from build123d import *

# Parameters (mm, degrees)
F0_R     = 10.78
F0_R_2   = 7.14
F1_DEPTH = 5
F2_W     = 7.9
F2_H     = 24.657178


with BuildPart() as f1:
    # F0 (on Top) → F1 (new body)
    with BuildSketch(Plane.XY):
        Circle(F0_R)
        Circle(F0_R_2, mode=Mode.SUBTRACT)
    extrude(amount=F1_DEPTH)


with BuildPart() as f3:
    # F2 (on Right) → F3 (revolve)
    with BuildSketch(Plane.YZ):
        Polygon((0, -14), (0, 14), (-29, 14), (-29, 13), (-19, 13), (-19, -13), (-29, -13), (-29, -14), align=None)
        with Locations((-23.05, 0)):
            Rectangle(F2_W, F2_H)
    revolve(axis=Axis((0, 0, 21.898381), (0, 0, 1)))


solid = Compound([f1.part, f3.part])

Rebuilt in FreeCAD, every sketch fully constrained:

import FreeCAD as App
import Part
import Sketcher
from FreeCAD import Vector
Q = App.Units.Quantity

doc = App.newDocument("Part")
body = doc.addObject("PartDesign::Body", "Body")

# Sketch on XY plane
sketch1 = body.newObject("Sketcher::SketchObject", "Sketch")
sketch1.AttachmentSupport = (doc.getObject("XY_Plane"), [""])
sketch1.MapMode = "FlatFace"
sketch1.addGeometry([
    Part.Circle(Vector(0, 0, 0), Vector(0, 0, 1), 10.78),
    Part.Circle(Vector(0, 0, 0), Vector(0, 0, 1), 7.14),
], False)
sketch1.addConstraint([
    Sketcher.Constraint("Coincident", 0, 3, -1, 1),
    Sketcher.Constraint("Coincident", 1, 3, -1, 1),
    Sketcher.Constraint("Diameter", 0, Q("21.56 mm")),
    Sketcher.Constraint("Diameter", 1, Q("14.28 mm")),
])
pad1 = body.newObject("PartDesign::Pad", "Pad")
pad1.Profile = sketch1
pad1.Length = 5
body2 = doc.addObject("PartDesign::Body", "Body001")
body2.AllowCompound = True

# Sketch on YZ plane
sketch2 = body2.newObject("Sketcher::SketchObject", "Sketch001")
sketch2.AttachmentSupport = (doc.getObject("YZ_Plane001"), [""])
sketch2.MapMode = "FlatFace"
sketch2.addGeometry([
    Part.LineSegment(Vector(0, -14, 0), Vector(0, 14, 0)),  # 0
    Part.LineSegment(Vector(0, 14, 0), Vector(-29, 14, 0)),  # 1
    Part.LineSegment(Vector(-29, 14, 0), Vector(-29, 13, 0)),  # 2
    Part.LineSegment(Vector(-29, 13, 0), Vector(-19, 13, 0)),  # 3
    Part.LineSegment(Vector(-19, 13, 0), Vector(-19, -13, 0)),  # 4
    Part.LineSegment(Vector(-19, -13, 0), Vector(-29, -13, 0)),  # 5
    Part.LineSegment(Vector(-29, -13, 0), Vector(-29, -14, 0)),  # 6
    Part.LineSegment(Vector(-29, -14, 0), Vector(0, -14, 0)),  # 7
    Part.LineSegment(Vector(-27, 12.328589, 0), Vector(-27, -12.328589, 0)),  # 8
    Part.LineSegment(Vector(-27, -12.328589, 0), Vector(-19.1, -12.328589, 0)),  # 9
    Part.LineSegment(Vector(-19.1, -12.328589, 0), Vector(-19.1, 12.328589, 0)),  # 10
    Part.LineSegment(Vector(-19.1, 12.328589, 0), Vector(-27, 12.328589, 0)),  # 11
], False)
sketch2.addConstraint([
    Sketcher.Constraint("Coincident", 0, 2, 1, 1),
    Sketcher.Constraint("Coincident", 1, 2, 2, 1),
    Sketcher.Constraint("Coincident", 2, 2, 3, 1),
    Sketcher.Constraint("Coincident", 3, 2, 4, 1),
    Sketcher.Constraint("Coincident", 4, 2, 5, 1),
    Sketcher.Constraint("Coincident", 5, 2, 6, 1),
    Sketcher.Constraint("Coincident", 6, 2, 7, 1),
    Sketcher.Constraint("Coincident", 7, 2, 0, 1),
    Sketcher.Constraint("Coincident", 8, 2, 9, 1),
    Sketcher.Constraint("Coincident", 9, 2, 10, 1),
    Sketcher.Constraint("Coincident", 10, 2, 11, 1),
    Sketcher.Constraint("Coincident", 11, 2, 8, 1),
    Sketcher.Constraint("Vertical", 0),
    Sketcher.Constraint("Horizontal", 1),
    Sketcher.Constraint("Vertical", 2),
    Sketcher.Constraint("Horizontal", 3),
    Sketcher.Constraint("Vertical", 4),
    Sketcher.Constraint("Horizontal", 5),
    Sketcher.Constraint("Vertical", 6),
    Sketcher.Constraint("Horizontal", 7),
    Sketcher.Constraint("Vertical", 8),
    Sketcher.Constraint("Horizontal", 9),
    Sketcher.Constraint("Vertical", 10),
    Sketcher.Constraint("Horizontal", 11),
    Sketcher.Constraint("Symmetric", 0, 2, 7, 2, -1, 1),
    Sketcher.Constraint("Symmetric", 2, 2, 5, 2, -1),
    Sketcher.Constraint("DistanceX", 1, 2, 1, 1, Q("29 mm")),
    Sketcher.Constraint("DistanceX", 3, 1, 3, 2, Q("10 mm")),
    Sketcher.Constraint("DistanceY", 0, 1, 0, 2, Q("28 mm")),
    Sketcher.Constraint("DistanceY", 2, 2, 2, 1, Q("1 mm")),
    Sketcher.Constraint("DistanceX", 9, 1, 9, 2, Q("7.9 mm")),
    Sketcher.Constraint("DistanceX", 8, 2, -1, 1, Q("27 mm")),
    Sketcher.Constraint("DistanceY", 8, 2, 8, 1, Q("24.657178 mm")),
    Sketcher.Constraint("DistanceY", 8, 2, -1, 1, Q("12.328589 mm")),
])
revolution = body2.newObject("PartDesign::Revolution", "Revolution")
revolution.Profile = sketch2
revolution.ReferenceAxis = (sketch2, ["V_Axis"])
revolution.Angle = 360

doc.recompute()
